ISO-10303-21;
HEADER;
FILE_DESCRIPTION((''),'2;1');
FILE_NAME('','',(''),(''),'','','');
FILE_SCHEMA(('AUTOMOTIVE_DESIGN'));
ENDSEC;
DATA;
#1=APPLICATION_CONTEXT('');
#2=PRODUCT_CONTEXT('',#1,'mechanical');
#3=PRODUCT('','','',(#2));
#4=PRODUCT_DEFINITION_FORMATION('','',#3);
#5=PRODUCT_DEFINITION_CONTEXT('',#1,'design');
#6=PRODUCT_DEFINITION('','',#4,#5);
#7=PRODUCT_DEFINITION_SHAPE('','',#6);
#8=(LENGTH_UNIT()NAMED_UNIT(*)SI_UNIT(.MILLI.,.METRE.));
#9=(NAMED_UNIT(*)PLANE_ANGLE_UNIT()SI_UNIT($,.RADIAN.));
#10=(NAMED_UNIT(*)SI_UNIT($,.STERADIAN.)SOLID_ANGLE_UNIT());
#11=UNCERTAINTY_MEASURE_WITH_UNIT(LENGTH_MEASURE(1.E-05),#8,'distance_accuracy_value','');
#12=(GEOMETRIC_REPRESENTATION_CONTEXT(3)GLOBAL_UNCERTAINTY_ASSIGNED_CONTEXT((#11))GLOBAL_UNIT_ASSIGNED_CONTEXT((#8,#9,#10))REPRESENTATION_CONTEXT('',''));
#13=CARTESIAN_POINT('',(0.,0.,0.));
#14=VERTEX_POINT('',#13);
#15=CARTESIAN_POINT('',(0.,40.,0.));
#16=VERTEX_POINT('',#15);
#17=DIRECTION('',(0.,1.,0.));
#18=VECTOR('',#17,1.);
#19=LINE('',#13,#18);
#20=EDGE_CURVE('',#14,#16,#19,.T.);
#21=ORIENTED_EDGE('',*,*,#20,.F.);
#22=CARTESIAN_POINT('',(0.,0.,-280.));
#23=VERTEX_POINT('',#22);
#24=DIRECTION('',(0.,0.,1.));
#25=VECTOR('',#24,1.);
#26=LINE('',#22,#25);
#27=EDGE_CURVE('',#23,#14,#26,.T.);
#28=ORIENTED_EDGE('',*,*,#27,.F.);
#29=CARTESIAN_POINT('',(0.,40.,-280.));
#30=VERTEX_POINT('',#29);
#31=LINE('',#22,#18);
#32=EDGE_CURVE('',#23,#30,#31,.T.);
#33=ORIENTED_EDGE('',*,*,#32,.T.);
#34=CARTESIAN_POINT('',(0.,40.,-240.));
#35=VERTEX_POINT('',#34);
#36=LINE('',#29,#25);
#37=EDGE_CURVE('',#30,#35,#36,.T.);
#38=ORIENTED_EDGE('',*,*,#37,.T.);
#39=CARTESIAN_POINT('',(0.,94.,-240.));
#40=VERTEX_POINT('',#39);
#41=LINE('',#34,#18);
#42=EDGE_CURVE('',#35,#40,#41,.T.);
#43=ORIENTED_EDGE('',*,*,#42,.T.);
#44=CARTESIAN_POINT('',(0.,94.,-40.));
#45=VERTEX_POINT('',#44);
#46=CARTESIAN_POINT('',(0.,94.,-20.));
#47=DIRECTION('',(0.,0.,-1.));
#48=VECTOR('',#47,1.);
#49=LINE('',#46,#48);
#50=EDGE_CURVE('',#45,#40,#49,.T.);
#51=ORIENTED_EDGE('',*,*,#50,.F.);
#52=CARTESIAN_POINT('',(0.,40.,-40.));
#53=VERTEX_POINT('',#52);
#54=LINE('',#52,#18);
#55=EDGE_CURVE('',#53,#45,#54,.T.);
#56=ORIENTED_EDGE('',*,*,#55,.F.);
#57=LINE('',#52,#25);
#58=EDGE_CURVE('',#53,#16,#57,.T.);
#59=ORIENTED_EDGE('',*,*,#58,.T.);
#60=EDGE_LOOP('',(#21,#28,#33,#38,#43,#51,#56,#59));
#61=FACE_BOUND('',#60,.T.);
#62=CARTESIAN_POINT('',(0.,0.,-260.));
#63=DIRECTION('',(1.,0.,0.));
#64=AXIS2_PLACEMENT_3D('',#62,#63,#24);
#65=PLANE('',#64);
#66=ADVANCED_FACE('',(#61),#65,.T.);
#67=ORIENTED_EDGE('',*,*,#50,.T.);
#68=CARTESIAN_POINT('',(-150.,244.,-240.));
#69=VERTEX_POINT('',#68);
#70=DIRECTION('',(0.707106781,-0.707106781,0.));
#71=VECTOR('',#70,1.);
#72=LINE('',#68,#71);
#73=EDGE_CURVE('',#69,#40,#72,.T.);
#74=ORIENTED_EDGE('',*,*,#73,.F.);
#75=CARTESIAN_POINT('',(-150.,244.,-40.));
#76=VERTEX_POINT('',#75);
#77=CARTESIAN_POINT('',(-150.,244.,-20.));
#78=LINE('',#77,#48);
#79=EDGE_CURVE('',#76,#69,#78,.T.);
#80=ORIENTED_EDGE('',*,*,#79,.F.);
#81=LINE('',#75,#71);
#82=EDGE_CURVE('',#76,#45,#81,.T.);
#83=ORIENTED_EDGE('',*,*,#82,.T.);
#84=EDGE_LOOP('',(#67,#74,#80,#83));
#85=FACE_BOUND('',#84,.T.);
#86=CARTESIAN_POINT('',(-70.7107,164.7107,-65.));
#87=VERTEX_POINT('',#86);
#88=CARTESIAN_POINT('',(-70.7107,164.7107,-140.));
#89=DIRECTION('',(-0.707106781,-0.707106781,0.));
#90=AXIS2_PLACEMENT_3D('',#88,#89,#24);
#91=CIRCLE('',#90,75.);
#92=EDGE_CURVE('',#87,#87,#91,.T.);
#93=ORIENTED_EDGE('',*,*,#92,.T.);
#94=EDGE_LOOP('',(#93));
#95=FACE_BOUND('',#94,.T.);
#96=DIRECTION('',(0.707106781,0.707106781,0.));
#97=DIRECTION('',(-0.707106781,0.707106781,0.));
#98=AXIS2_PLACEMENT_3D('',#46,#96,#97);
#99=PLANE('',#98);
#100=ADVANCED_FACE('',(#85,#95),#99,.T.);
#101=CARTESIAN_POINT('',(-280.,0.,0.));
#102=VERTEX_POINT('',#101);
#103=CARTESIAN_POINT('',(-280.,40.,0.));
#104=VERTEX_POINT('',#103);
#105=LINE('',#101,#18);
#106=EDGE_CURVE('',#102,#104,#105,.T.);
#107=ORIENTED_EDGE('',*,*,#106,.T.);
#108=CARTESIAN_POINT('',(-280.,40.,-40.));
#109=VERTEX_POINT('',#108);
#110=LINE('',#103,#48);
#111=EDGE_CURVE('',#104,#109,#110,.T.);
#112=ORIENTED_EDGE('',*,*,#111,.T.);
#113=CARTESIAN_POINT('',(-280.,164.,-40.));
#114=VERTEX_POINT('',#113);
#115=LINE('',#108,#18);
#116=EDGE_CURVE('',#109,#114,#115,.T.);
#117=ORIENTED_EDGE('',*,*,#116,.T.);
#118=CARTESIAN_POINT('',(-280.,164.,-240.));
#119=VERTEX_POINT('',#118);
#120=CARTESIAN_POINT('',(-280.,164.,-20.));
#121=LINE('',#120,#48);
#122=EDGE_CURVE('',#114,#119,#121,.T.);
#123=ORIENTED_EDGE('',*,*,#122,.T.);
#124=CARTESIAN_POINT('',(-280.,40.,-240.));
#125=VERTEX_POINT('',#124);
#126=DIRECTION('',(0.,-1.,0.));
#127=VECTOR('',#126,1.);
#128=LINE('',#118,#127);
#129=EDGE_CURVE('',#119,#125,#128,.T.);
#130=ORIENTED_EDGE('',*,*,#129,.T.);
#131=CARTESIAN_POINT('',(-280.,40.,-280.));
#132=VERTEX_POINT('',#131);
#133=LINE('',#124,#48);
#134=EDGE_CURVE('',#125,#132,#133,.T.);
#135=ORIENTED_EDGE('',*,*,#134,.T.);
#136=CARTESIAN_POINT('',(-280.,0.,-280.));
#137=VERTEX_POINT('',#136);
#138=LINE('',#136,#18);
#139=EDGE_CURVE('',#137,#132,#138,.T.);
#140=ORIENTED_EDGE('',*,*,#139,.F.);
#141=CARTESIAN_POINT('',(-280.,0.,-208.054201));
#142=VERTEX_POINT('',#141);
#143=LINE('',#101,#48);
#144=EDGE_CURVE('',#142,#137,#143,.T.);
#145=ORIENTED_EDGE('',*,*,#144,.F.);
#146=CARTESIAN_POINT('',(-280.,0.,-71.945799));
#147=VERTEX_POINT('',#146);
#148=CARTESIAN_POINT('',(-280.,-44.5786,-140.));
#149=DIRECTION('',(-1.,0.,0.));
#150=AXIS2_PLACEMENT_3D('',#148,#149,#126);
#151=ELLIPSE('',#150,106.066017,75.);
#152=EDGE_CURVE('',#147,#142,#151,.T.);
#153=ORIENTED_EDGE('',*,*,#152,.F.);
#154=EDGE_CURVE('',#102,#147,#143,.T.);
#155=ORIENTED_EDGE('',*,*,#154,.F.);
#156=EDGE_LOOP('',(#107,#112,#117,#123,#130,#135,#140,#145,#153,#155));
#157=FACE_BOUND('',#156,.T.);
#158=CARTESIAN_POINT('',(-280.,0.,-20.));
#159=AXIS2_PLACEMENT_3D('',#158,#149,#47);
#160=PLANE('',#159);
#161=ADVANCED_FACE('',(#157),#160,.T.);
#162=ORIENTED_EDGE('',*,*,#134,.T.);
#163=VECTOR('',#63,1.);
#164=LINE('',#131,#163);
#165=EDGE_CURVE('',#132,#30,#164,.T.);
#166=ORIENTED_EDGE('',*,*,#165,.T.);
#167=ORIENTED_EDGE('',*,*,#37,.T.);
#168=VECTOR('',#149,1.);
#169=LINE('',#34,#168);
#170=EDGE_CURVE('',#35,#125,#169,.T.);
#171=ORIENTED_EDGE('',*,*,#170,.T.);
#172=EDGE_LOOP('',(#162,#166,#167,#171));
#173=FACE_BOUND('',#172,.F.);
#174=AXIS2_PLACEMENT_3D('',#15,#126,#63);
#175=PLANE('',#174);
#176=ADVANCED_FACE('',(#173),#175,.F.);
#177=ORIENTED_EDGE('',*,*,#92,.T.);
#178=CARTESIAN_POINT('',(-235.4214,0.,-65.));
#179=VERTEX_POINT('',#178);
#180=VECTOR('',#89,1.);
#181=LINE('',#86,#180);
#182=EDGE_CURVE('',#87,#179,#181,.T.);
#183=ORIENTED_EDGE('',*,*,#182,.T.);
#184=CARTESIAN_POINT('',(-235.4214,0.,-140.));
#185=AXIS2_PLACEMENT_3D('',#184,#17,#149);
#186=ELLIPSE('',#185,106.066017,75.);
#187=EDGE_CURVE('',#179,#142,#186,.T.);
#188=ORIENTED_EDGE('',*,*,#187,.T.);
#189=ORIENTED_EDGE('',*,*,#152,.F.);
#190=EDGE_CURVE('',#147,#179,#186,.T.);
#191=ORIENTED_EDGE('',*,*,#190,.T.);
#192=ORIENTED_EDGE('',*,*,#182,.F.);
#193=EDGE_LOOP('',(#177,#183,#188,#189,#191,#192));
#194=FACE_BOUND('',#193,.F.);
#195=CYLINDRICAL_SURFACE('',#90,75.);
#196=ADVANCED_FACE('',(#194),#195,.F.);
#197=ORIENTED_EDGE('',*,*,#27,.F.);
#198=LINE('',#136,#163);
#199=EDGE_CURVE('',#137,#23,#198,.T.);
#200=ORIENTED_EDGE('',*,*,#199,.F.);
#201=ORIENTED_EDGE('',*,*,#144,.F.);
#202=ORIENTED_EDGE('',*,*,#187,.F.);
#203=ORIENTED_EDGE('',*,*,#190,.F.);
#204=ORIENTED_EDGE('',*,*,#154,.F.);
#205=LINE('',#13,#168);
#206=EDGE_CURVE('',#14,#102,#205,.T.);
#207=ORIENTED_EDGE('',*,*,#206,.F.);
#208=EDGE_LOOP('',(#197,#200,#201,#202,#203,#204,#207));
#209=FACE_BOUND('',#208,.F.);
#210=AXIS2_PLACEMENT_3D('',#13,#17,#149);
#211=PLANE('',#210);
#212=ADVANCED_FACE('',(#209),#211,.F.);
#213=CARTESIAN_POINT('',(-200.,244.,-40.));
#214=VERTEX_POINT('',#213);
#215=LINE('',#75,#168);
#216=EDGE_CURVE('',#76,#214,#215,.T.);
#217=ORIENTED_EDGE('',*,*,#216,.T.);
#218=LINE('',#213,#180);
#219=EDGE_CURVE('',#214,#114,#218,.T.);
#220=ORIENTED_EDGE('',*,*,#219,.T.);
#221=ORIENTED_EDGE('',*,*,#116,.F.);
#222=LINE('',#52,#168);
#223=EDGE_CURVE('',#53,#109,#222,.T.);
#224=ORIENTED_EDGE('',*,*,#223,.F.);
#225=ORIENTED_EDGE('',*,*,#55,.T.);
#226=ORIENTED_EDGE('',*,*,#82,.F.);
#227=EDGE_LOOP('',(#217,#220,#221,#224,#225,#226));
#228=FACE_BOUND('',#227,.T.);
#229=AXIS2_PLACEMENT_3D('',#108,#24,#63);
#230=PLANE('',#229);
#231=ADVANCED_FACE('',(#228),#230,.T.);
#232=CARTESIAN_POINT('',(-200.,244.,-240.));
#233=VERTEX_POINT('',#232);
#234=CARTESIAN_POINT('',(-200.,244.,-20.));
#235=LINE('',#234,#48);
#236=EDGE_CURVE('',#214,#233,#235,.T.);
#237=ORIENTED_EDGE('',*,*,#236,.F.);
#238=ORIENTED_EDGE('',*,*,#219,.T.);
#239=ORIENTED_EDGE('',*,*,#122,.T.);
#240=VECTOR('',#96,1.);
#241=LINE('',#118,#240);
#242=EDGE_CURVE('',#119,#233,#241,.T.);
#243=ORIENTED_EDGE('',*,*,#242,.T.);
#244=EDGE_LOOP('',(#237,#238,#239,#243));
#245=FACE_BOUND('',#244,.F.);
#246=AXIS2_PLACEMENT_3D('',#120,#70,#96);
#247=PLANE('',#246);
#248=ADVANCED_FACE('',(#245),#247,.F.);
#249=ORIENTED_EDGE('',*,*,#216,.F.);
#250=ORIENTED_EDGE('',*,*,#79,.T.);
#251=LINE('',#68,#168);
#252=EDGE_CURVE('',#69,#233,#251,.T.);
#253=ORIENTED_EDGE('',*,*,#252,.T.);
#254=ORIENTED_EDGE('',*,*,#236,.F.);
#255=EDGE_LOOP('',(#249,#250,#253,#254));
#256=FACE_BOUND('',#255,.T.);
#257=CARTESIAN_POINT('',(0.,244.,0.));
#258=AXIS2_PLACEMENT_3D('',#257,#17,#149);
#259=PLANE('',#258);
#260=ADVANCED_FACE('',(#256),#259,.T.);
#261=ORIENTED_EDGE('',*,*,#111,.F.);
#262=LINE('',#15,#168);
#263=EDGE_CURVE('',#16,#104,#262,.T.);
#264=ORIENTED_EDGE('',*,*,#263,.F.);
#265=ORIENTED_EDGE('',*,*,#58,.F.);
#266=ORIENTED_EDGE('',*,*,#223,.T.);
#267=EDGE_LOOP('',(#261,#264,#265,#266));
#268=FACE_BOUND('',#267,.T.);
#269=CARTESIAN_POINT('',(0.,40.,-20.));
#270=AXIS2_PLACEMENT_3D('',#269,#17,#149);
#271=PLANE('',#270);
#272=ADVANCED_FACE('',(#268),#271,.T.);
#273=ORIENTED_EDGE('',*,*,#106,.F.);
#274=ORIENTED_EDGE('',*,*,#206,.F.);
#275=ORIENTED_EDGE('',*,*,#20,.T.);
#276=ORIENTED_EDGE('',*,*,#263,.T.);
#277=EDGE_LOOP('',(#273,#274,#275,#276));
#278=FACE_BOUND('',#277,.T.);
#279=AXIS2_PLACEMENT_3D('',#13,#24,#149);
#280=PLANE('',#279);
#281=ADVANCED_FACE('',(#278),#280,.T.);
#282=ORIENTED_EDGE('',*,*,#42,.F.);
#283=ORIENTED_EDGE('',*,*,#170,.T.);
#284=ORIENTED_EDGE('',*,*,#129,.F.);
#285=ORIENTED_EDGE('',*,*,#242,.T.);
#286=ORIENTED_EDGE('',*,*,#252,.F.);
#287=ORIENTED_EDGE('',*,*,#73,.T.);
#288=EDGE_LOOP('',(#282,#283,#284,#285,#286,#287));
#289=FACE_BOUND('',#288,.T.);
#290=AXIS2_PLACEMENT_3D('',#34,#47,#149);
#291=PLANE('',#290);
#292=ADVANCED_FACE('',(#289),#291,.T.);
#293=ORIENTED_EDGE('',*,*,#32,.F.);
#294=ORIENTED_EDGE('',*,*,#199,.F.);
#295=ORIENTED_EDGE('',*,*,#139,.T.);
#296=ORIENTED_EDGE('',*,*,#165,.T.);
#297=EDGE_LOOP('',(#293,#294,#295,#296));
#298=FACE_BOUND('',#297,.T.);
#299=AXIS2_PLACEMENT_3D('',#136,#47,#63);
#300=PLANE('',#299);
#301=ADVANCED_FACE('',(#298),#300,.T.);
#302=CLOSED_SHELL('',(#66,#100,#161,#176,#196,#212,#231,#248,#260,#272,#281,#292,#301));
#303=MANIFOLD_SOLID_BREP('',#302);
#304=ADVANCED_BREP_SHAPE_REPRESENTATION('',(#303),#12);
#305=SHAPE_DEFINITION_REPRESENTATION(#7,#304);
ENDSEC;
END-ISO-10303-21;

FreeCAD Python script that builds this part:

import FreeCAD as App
import Part
import Sketcher
Q = App.Units.Quantity


def add_polygon(sketch, points):
    """Adds a closed chain of lines whose ends are joined by coincident constraints."""
    first, n = sketch.GeometryCount, len(points)
    for a, b in zip(points, points[1:] + points[:1]):
        sketch.addGeometry(Part.LineSegment(App.Vector(*a, 0), App.Vector(*b, 0)), False)
    for i in range(n):
        sketch.addConstraint(Sketcher.Constraint("Coincident", first + i, 2, first + (i + 1) % n, 1))

doc = App.newDocument("Part")
params = doc.addObject("Spreadsheet::Sheet", "Params")
for row, (alias, value) in enumerate([
    ("sketch1_width", "280 mm"),
    ("sketch1_height", "240 mm"),
    ("pad1_length", "244 mm"),
    ("sketch2_width", "280 mm"),
    ("pad2_length", "40 mm"),
    ("sketch3_width", "80 mm"),
    ("sketch4_diameter", "150 mm"),
    ("hole_diameter", "150 mm"),
    ("sketch5_width", "280 mm"),
    ("sketch5_width2", "50 mm"),
    ("sketch5_height", "54 mm"),
    ("sketch5_height2", "124 mm"),
    ("pocket2_length", "20 mm"),
    ("sketch6_width", "280 mm"),
    ("sketch6_width2", "50 mm"),
    ("sketch6_height", "54 mm"),
    ("sketch6_height2", "124 mm"),
    ("pocket3_length", "20 mm"),
], start=1):
    params.set(f"A{row}", alias)
    params.set(f"B{row}", "=" + value)
    params.setAlias(f"B{row}", alias)

body = doc.addObject("PartDesign::Body", "Body")

sketch1 = body.newObject("Sketcher::SketchObject", "Sketch")
sketch1.AttachmentSupport = (doc.getObject("XZ_Plane"), [""])
sketch1.MapMode = "FlatFace"
add_polygon(sketch1, [(-280, -20), (0, -20), (0, -260), (-280, -260)])
sketch1.addConstraint(Sketcher.Constraint("Horizontal", 0))
sketch1.addConstraint(Sketcher.Constraint("Vertical", 1))
sketch1.addConstraint(Sketcher.Constraint("Horizontal", 2))
sketch1.addConstraint(Sketcher.Constraint("Vertical", 3))
sketch1.addConstraint(Sketcher.Constraint("PointOnObject", 0, 2, -2))
sketch1.addConstraint(Sketcher.Constraint("DistanceX", 0, 1, 0, 2, Q("280 mm")))
sketch1.addConstraint(Sketcher.Constraint("DistanceY", 1, 2, 1, 1, Q("240 mm")))
sketch1.addConstraint(Sketcher.Constraint("DistanceY", 0, 2, -1, 1, Q("20 mm")))
sketch1.setExpression("Constraints[9]", "Params.sketch1_width")
sketch1.setExpression("Constraints[10]", "Params.sketch1_height")
pad1 = body.newObject("PartDesign::Pad", "Pad")
pad1.Profile = sketch1
pad1.setExpression("Length", "Params.pad1_length")
pad1.Reversed = True

sketch2 = body.newObject("Sketcher::SketchObject", "Sketch001")
sketch2.AttachmentSupport = (doc.getObject("XZ_Plane"), [""])
sketch2.MapMode = "FlatFace"
add_polygon(sketch2, [(0, -280), (0, 0), (-280, 0), (-280, -280)])
sketch2.addConstraint(Sketcher.Constraint("Vertical", 0))
sketch2.addConstraint(Sketcher.Constraint("Horizontal", 1))
sketch2.addConstraint(Sketcher.Constraint("Vertical", 2))
sketch2.addConstraint(Sketcher.Constraint("Horizontal", 3))
sketch2.addConstraint(Sketcher.Constraint("Coincident", 0, 2, -1, 1))
sketch2.addConstraint(Sketcher.Constraint("Equal", 3, 0))
sketch2.addConstraint(Sketcher.Constraint("DistanceX", 1, 2, 1, 1, Q("280 mm")))
sketch2.setExpression("Constraints[10]", "Params.sketch2_width")
pad2 = body.newObject("PartDesign::Pad", "Pad001")
pad2.Profile = sketch2
pad2.setExpression("Length", "Params.pad2_length")
pad2.Reversed = True

sketch3 = body.newObject("Sketcher::SketchObject", "Sketch002")
sketch3.AttachmentSupport = (doc.getObject("XY_Plane"), [""])
sketch3.MapMode = "FlatFace"
sketch3.AttachmentOffset = App.Placement(App.Vector(0, 0, -20), App.Rotation())
add_polygon(sketch3, [(-280, 244), (-280, 164), (-200, 244)])
add_polygon(sketch3, [(-150, 244), (0, 94), (0, 244)])
sketch3.addConstraint(Sketcher.Constraint("Vertical", 0))
sketch3.addConstraint(Sketcher.Constraint("Horizontal", 2))
sketch3.addConstraint(Sketcher.Constraint("Vertical", 4))
sketch3.addConstraint(Sketcher.Constraint("Horizontal", 5))
sketch3.addConstraint(Sketcher.Constraint("PointOnObject", 3, 2, -2))
sketch3.addConstraint(Sketcher.Constraint("Perpendicular", 1, 3))
sketch3.addConstraint(Sketcher.Constraint("Horizontal", 2, 2, 4, 2))
sketch3.addConstraint(Sketcher.Constraint("Equal", 2, 0))
sketch3.addConstraint(Sketcher.Constraint("DistanceX", 2, 2, 2, 1, Q("80 mm")))
sketch3.addConstraint(Sketcher.Constraint("DistanceY", -1, 1, 0, 2, Q("164 mm")))
sketch3.addConstraint(Sketcher.Constraint("DistanceY", -1, 1, 3, 2, Q("94 mm")))
sketch3.addConstraint(Sketcher.Constraint("DistanceX", 1, 2, 5, 2, Q("50 mm")))
sketch3.setExpression("Constraints[14]", "Params.sketch3_width")
pocket1 = body.newObject("PartDesign::Pocket", "Pocket")
pocket1.Profile = sketch3
pocket1.Type = "ThroughAll"

sketch4 = body.newObject("Sketcher::SketchObject", "Sketch003")
sketch4.Placement = App.Placement(App.Vector(47, 47, 0), App.Rotation(App.Vector(-0.707106781, 0.707106781, 0), App.Vector(0, 0, 0.999999999), App.Vector(0.707106781, 0.707106781, 0), "ZXY"))
sketch4.addGeometry(Part.Circle(App.Vector(166.468068, -140, 0), App.Vector(0, 0, 1), 75), False)
sketch4.addConstraint(Sketcher.Constraint("Diameter", 0, Q("150 mm")))
sketch4.addConstraint(Sketcher.Constraint("DistanceY", 0, 3, -1, 1, Q("140 mm")))
sketch4.addConstraint(Sketcher.Constraint("DistanceX", -1, 1, 0, 3, Q("166.468 mm")))
sketch4.setExpression("Constraints[0]", "Params.sketch4_diameter")
doc.recompute()
hole = body.newObject("PartDesign::Hole", "Hole")
hole.Profile = sketch4
hole.ThreadType = "None"
hole.setExpression("Diameter", "Params.hole_diameter")
hole.DepthType = "ThroughAll"

sketch5 = body.newObject("Sketcher::SketchObject", "Sketch004")
sketch5.AttachmentSupport = (doc.getObject("XY_Plane"), [""])
sketch5.MapMode = "FlatFace"
sketch5.AttachmentOffset = App.Placement(App.Vector(0, 0, -20), App.Rotation())
add_polygon(sketch5, [(-280, 40), (0, 40), (0, 94), (-150, 244), (-200, 244), (-280, 164)])
sketch5.addConstraint(Sketcher.Constraint("Horizontal", 0))
sketch5.addConstraint(Sketcher.Constraint("Vertical", 1))
sketch5.addConstraint(Sketcher.Constraint("Horizontal", 3))
sketch5.addConstraint(Sketcher.Constraint("Vertical", 5))
sketch5.addConstraint(Sketcher.Constraint("PointOnObject", 0, 2, -2))
sketch5.addConstraint(Sketcher.Constraint("Perpendicular", 2, 4))
sketch5.addConstraint(Sketcher.Constraint("DistanceX", 0, 1, 0, 2, Q("280 mm")))
sketch5.addConstraint(Sketcher.Constraint("DistanceX", 3, 2, 3, 1, Q("50 mm")))
sketch5.addConstraint(Sketcher.Constraint("DistanceY", 1, 1, 1, 2, Q("54 mm")))
sketch5.addConstraint(Sketcher.Constraint("DistanceY", 5, 2, 5, 1, Q("124 mm")))
sketch5.addConstraint(Sketcher.Constraint("Angle", 2, Q("135 deg")))
sketch5.addConstraint(Sketcher.Constraint("DistanceY", -1, 1, 0, 2, Q("40 mm")))
sketch5.setExpression("Constraints[12]", "Params.sketch5_width")
sketch5.setExpression("Constraints[13]", "Params.sketch5_width2")
sketch5.setExpression("Constraints[14]", "Params.sketch5_height")
sketch5.setExpression("Constraints[15]", "Params.sketch5_height2")
pocket2 = body.newObject("PartDesign::Pocket", "Pocket001")
pocket2.Profile = sketch5
pocket2.setExpression("Length", "Params.pocket2_length")

sketch6 = body.newObject("Sketcher::SketchObject", "Sketch005")
sketch6.AttachmentSupport = (doc.getObject("XY_Plane"), [""])
sketch6.MapMode = "FlatFace"
sketch6.AttachmentOffset = App.Placement(App.Vector(0, 0, -260), App.Rotation())
add_polygon(sketch6, [(0, 94), (0, 40), (-280, 40), (-280, 164), (-200, 244), (-150, 244)])
sketch6.addConstraint(Sketcher.Constraint("Vertical", 0))
sketch6.addConstraint(Sketcher.Constraint("Horizontal", 1))
sketch6.addConstraint(Sketcher.Constraint("Vertical", 2))
sketch6.addConstraint(Sketcher.Constraint("Horizontal", 4))
sketch6.addConstraint(Sketcher.Constraint("PointOnObject", 0, 2, -2))
sketch6.addConstraint(Sketcher.Constraint("Perpendicular", 3, 5))
sketch6.addConstraint(Sketcher.Constraint("DistanceX", 1, 2, 1, 1, Q("280 mm")))
sketch6.addConstraint(Sketcher.Constraint("DistanceX", 4, 1, 4, 2, Q("50 mm")))
sketch6.addConstraint(Sketcher.Constraint("DistanceY", 0, 2, 0, 1, Q("54 mm")))
sketch6.addConstraint(Sketcher.Constraint("DistanceY", 2, 1, 2, 2, Q("124 mm")))
sketch6.addConstraint(Sketcher.Constraint("Angle", 3, Q("45 deg")))
sketch6.addConstraint(Sketcher.Constraint("DistanceY", -1, 1, 0, 2, Q("40 mm")))
sketch6.setExpression("Constraints[12]", "Params.sketch6_width")
sketch6.setExpression("Constraints[13]", "Params.sketch6_width2")
sketch6.setExpression("Constraints[14]", "Params.sketch6_height")
sketch6.setExpression("Constraints[15]", "Params.sketch6_height2")
pocket3 = body.newObject("PartDesign::Pocket", "Pocket002")
pocket3.Profile = sketch6
pocket3.setExpression("Length", "Params.pocket3_length")
pocket3.Reversed = True

doc.recompute()
